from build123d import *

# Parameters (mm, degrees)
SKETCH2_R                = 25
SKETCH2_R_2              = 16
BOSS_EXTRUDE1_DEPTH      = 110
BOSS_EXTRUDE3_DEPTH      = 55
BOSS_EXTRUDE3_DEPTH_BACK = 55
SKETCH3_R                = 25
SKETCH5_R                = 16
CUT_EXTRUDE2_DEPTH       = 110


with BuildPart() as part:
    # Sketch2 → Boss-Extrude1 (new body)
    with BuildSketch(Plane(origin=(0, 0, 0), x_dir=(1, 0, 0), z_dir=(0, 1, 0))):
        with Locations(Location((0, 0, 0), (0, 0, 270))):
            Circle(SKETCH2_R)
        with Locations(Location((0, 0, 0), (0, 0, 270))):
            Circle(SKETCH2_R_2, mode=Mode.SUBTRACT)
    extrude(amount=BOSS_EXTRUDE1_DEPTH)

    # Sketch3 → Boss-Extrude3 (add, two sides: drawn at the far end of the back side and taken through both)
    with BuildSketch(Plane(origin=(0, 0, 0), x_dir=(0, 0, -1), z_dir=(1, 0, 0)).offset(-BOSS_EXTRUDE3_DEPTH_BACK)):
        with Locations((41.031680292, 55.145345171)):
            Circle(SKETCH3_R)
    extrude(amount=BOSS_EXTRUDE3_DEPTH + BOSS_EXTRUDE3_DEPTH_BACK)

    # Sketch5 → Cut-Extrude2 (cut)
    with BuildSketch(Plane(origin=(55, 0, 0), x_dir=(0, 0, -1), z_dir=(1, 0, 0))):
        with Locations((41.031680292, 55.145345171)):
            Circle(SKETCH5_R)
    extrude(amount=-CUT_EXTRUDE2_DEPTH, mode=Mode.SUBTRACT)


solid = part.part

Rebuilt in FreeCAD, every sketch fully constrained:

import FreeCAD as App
import Part
import Sketcher

V = App.Vector
Q = App.Units.Quantity

doc = App.newDocument("Part")
body = doc.addObject("PartDesign::Body", "Body")

# Sketch on XZ plane
sketch1 = body.newObject("Sketcher::SketchObject", "Sketch")
sketch1.AttachmentSupport = (doc.getObject("XZ_Plane"), [""])
sketch1.MapMode = "FlatFace"
sketch1.addGeometry([
    Part.Circle(V(0, 0, 0), V(0, 0, 1), 25),
    Part.Circle(V(0, 0, 0), V(0, 0, 1), 16),
], False)
sketch1.addConstraint([
    Sketcher.Constraint("Coincident", 0, 3, -1, 1),
    Sketcher.Constraint("Coincident", 1, 3, -1, 1),
    Sketcher.Constraint("Diameter", 0, Q("50 mm")),
    Sketcher.Constraint("Diameter", 1, Q("32 mm")),
])
pad1 = body.newObject("PartDesign::Pad", "Pad")
pad1.Profile = sketch1
pad1.Length = 110
pad1.Reversed = True

# Sketch on YZ plane
sketch2 = body.newObject("Sketcher::SketchObject", "Sketch001")
sketch2.AttachmentSupport = (doc.getObject("YZ_Plane"), [""])
sketch2.MapMode = "FlatFace"
sketch2.addGeometry(Part.Circle(V(55, -41, 0), V(0, 0, 1), 25), False)
sketch2.addConstraint([
    Sketcher.Constraint("Diameter", 0, Q("50 mm")),
    Sketcher.Constraint("DistanceY", 0, 3, -1, 1, Q("41.03168 mm")),
    Sketcher.Constraint("DistanceX", -1, 1, 0, 3, Q("55.145345 mm")),
])
pad2 = body.newObject("PartDesign::Pad", "Pad001")
pad2.Profile = sketch2
pad2.Type = "TwoLengths"
pad2.Length = 55
pad2.Length2 = 55

# Sketch on YZ plane
sketch3 = body.newObject("Sketcher::SketchObject", "Sketch002")
sketch3.AttachmentSupport = (doc.getObject("YZ_Plane"), [""])
sketch3.MapMode = "FlatFace"
sketch3.AttachmentOffset = App.Placement(V(0, 0, 55), App.Rotation())
sketch3.addGeometry(Part.Circle(V(55, -41, 0), V(0, 0, 1), 16), False)
sketch3.addConstraint([
    Sketcher.Constraint("Diameter", 0, Q("32 mm")),
    Sketcher.Constraint("DistanceY", 0, 3, -1, 1, Q("41.03168 mm")),
    Sketcher.Constraint("DistanceX", -1, 1, 0, 3, Q("55.145345 mm")),
])
pocket1 = body.newObject("PartDesign::Pocket", "Pocket")
pocket1.Profile = sketch3
pocket1.Length = 110

doc.recompute()
